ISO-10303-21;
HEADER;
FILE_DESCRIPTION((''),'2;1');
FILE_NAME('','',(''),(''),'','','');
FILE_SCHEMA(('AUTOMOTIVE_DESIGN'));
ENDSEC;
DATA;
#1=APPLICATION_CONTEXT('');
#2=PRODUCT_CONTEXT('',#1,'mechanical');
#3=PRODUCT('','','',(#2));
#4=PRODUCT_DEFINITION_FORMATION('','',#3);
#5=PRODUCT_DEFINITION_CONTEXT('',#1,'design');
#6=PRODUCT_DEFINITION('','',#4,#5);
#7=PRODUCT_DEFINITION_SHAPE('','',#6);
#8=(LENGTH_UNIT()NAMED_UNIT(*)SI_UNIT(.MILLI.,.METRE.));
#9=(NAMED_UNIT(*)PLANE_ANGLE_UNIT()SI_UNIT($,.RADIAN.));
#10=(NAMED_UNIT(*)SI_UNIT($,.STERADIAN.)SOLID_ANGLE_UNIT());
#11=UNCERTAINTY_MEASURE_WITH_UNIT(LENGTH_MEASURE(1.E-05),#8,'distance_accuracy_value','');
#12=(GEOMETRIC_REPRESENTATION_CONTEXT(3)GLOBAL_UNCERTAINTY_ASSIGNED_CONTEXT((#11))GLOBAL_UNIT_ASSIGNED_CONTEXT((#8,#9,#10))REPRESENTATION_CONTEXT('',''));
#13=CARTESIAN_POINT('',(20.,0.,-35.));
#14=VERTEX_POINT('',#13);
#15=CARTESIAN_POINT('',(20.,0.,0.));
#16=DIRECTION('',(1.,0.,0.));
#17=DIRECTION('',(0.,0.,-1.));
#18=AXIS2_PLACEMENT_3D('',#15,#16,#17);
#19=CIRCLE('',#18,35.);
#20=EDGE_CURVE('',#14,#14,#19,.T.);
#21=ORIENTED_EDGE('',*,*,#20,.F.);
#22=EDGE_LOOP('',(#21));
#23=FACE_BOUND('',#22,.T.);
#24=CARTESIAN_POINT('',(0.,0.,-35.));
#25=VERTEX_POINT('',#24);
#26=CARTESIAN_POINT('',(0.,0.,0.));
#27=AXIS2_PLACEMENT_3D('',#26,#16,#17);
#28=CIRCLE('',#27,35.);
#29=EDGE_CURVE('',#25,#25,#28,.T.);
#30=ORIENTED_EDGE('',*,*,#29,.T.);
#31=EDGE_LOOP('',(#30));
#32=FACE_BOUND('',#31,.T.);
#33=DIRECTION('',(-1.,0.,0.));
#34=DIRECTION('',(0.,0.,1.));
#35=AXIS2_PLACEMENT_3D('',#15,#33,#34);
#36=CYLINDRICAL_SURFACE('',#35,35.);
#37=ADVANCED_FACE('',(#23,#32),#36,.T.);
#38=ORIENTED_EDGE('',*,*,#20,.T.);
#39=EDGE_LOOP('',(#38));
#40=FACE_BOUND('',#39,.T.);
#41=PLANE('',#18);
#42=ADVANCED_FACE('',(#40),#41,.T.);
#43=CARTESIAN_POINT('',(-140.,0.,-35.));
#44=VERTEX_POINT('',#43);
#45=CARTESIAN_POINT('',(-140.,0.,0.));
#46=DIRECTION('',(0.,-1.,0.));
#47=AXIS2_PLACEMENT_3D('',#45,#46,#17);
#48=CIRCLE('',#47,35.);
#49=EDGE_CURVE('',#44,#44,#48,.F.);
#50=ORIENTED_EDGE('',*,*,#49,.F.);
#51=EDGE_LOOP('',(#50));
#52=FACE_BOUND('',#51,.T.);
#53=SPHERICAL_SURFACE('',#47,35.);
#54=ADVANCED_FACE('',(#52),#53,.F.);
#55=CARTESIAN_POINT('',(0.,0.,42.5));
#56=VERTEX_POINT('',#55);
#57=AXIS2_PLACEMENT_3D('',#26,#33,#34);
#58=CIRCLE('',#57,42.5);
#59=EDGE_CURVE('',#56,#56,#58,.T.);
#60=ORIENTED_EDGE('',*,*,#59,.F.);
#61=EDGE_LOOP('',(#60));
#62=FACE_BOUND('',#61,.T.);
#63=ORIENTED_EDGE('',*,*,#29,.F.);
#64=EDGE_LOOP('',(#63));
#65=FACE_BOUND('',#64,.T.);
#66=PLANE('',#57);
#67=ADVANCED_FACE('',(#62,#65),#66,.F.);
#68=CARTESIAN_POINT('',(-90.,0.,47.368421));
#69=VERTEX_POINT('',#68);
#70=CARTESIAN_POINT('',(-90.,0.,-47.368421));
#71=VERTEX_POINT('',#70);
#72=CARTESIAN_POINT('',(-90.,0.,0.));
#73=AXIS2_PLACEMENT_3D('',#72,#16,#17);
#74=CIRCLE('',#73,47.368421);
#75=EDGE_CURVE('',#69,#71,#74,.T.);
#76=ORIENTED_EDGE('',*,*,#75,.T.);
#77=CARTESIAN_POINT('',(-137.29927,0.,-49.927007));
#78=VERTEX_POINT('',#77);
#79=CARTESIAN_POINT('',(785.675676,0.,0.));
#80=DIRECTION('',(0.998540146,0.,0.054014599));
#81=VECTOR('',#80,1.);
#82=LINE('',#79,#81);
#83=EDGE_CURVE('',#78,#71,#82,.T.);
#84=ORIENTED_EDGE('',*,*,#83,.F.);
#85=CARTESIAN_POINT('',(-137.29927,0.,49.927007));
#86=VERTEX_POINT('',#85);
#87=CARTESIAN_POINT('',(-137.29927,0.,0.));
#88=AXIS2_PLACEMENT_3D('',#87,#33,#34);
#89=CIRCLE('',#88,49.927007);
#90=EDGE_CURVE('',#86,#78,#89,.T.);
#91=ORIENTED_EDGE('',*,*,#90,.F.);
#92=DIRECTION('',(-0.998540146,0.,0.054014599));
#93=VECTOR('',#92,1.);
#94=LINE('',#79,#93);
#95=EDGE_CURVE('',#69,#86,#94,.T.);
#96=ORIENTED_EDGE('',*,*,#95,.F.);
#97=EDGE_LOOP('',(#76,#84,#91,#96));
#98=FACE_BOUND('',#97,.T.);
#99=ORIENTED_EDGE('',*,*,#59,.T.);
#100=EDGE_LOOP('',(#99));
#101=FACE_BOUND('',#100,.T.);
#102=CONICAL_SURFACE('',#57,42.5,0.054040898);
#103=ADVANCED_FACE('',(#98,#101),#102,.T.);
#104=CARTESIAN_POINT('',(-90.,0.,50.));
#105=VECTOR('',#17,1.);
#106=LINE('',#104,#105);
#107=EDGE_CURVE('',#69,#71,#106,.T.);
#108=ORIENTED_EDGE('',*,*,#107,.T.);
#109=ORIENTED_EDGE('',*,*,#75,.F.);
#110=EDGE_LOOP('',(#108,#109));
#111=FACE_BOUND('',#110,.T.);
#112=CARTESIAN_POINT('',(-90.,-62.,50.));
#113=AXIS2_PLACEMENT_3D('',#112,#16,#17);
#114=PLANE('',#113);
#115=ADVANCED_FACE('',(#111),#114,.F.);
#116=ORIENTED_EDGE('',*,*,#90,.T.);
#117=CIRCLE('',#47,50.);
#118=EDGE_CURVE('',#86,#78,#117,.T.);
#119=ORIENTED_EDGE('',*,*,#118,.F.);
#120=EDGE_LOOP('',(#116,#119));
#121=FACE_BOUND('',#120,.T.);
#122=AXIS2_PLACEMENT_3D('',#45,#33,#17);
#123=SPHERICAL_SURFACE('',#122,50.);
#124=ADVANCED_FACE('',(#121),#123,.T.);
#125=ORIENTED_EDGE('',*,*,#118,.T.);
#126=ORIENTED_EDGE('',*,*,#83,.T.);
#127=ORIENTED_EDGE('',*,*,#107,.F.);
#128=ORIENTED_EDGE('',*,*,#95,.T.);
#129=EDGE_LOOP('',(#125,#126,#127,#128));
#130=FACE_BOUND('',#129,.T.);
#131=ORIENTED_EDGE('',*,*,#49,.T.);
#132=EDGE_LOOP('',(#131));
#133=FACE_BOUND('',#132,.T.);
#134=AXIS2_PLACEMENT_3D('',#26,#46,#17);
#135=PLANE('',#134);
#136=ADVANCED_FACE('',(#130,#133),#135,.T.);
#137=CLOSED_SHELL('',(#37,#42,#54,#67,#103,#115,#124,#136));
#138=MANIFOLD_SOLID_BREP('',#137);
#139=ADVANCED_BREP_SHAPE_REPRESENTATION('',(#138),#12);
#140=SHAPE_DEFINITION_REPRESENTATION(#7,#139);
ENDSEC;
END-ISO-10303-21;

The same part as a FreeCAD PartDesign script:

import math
import FreeCAD as App
import Part
import Sketcher


def add_polygon(sketch, points):
    """Adds a closed chain of lines whose ends are joined by coincident constraints."""
    first, n = sketch.GeometryCount, len(points)
    for a, b in zip(points, points[1:] + points[:1]):
        sketch.addGeometry(Part.LineSegment(App.Vector(*a, 0), App.Vector(*b, 0)), False)
    for i in range(n):
        sketch.addConstraint(Sketcher.Constraint("Coincident", first + i, 2, first + (i + 1) % n, 1))

doc = App.newDocument("Part")
body = doc.addObject("PartDesign::Body", "Body")

# Sketch on XZ plane
sketch1 = doc.addObject("Sketcher::SketchObject", "Sketch")
body.addObject(sketch1)
sketch1.AttachmentSupport = (doc.XZ_Plane, [""])
sketch1.MapMode = "FlatFace"
sketch1.addGeometry([
    Part.LineSegment(App.Vector(0, 0, 0), App.Vector(0, -42, 0)),  # 0
    Part.LineSegment(App.Vector(0, -42, 0), App.Vector(-137, -50, 0)),  # 1
    Part.ArcOfCircle(Part.Circle(App.Vector(-140, 0, 0), App.Vector(0, 0, 1), 50), math.radians(180), math.radians(273)),  # 2
    Part.LineSegment(App.Vector(-190, 0, 0), App.Vector(-175, 0, 0)),  # 3
    Part.ArcOfCircle(Part.Circle(App.Vector(-140, 0, 0), App.Vector(0, 0, 1), 35), math.radians(180), math.radians(360)),  # 4
    Part.LineSegment(App.Vector(-105, 0, 0), App.Vector(0, 0, 0)),  # 5
], False)
sketch1.addConstraint([
    Sketcher.Constraint("Coincident", 0, 2, 1, 1),
    Sketcher.Constraint("Tangent", 1, 2, 2, 2),
    Sketcher.Constraint("Coincident", 2, 1, 3, 1),
    Sketcher.Constraint("Coincident", 3, 2, 4, 1),
    Sketcher.Constraint("Coincident", 4, 2, 5, 1),
    Sketcher.Constraint("Coincident", 5, 2, 0, 1),
    Sketcher.Constraint("Vertical", 0),
    Sketcher.Constraint("Horizontal", 3),
    Sketcher.Constraint("Horizontal", 5),
    Sketcher.Constraint("Coincident", 5, 2, -1, 1),
    Sketcher.Constraint("Coincident", 4, 3, 2, 3),
    Sketcher.Constraint("PointOnObject", 2, 3, -1),
    Sketcher.Constraint("PointOnObject", 2, 1, -1),
    Sketcher.Constraint("Radius", 2, 50.0),
    Sketcher.Constraint("Radius", 4, 35.0),
    Sketcher.Constraint("DistanceX", 5, 1, 5, 2, 105.0),
    Sketcher.Constraint("DistanceY", 0, 2, 0, 1, 42.5),
])
revolution = doc.addObject("PartDesign::Revolution", "Revolution")
body.addObject(revolution)
revolution.Profile = sketch1
revolution.ReferenceAxis = (sketch1, ["H_Axis"])
revolution.Angle = 360

# Sketch on XZ plane
sketch2 = doc.addObject("Sketcher::SketchObject", "Sketch001")
body.addObject(sketch2)
sketch2.AttachmentSupport = (doc.XZ_Plane, [""])
sketch2.MapMode = "FlatFace"
add_polygon(sketch2, [(-190, -50), (-190, 50), (-90, 50), (-90, -50)])  # lines 0-3
sketch2.addConstraint([
    Sketcher.Constraint("Vertical", 0),
    Sketcher.Constraint("Horizontal", 1),
    Sketcher.Constraint("Vertical", 2),
    Sketcher.Constraint("Horizontal", 3),
    Sketcher.Constraint("Equal", 3, 0),
    Sketcher.Constraint("DistanceX", 1, 1, 1, 2, 100.0),
    Sketcher.Constraint("DistanceX", 0, 2, -1, 1, 190.0),
    Sketcher.Constraint("DistanceY", -1, 1, 0, 2, 50.0),
])
pocket1 = doc.addObject("PartDesign::Pocket", "Pocket")
body.addObject(pocket1)
pocket1.Profile = sketch2
pocket1.Length = 62
pocket1.Reversed = True

# Sketch on YZ plane
sketch3 = doc.addObject("Sketcher::SketchObject", "Sketch002")
body.addObject(sketch3)
sketch3.AttachmentSupport = (doc.YZ_Plane, [""])
sketch3.MapMode = "FlatFace"
sketch3.addGeometry(Part.Circle(App.Vector(0, 0, 0), App.Vector(0, 0, 1), 35), False)
sketch3.addConstraint([
    Sketcher.Constraint("Coincident", 0, 3, -1, 1),
    Sketcher.Constraint("Diameter", 0, 70.0),
])
pad1 = doc.addObject("PartDesign::Pad", "Pad")
body.addObject(pad1)
pad1.Profile = sketch3
pad1.Length = 20

doc.recompute()
